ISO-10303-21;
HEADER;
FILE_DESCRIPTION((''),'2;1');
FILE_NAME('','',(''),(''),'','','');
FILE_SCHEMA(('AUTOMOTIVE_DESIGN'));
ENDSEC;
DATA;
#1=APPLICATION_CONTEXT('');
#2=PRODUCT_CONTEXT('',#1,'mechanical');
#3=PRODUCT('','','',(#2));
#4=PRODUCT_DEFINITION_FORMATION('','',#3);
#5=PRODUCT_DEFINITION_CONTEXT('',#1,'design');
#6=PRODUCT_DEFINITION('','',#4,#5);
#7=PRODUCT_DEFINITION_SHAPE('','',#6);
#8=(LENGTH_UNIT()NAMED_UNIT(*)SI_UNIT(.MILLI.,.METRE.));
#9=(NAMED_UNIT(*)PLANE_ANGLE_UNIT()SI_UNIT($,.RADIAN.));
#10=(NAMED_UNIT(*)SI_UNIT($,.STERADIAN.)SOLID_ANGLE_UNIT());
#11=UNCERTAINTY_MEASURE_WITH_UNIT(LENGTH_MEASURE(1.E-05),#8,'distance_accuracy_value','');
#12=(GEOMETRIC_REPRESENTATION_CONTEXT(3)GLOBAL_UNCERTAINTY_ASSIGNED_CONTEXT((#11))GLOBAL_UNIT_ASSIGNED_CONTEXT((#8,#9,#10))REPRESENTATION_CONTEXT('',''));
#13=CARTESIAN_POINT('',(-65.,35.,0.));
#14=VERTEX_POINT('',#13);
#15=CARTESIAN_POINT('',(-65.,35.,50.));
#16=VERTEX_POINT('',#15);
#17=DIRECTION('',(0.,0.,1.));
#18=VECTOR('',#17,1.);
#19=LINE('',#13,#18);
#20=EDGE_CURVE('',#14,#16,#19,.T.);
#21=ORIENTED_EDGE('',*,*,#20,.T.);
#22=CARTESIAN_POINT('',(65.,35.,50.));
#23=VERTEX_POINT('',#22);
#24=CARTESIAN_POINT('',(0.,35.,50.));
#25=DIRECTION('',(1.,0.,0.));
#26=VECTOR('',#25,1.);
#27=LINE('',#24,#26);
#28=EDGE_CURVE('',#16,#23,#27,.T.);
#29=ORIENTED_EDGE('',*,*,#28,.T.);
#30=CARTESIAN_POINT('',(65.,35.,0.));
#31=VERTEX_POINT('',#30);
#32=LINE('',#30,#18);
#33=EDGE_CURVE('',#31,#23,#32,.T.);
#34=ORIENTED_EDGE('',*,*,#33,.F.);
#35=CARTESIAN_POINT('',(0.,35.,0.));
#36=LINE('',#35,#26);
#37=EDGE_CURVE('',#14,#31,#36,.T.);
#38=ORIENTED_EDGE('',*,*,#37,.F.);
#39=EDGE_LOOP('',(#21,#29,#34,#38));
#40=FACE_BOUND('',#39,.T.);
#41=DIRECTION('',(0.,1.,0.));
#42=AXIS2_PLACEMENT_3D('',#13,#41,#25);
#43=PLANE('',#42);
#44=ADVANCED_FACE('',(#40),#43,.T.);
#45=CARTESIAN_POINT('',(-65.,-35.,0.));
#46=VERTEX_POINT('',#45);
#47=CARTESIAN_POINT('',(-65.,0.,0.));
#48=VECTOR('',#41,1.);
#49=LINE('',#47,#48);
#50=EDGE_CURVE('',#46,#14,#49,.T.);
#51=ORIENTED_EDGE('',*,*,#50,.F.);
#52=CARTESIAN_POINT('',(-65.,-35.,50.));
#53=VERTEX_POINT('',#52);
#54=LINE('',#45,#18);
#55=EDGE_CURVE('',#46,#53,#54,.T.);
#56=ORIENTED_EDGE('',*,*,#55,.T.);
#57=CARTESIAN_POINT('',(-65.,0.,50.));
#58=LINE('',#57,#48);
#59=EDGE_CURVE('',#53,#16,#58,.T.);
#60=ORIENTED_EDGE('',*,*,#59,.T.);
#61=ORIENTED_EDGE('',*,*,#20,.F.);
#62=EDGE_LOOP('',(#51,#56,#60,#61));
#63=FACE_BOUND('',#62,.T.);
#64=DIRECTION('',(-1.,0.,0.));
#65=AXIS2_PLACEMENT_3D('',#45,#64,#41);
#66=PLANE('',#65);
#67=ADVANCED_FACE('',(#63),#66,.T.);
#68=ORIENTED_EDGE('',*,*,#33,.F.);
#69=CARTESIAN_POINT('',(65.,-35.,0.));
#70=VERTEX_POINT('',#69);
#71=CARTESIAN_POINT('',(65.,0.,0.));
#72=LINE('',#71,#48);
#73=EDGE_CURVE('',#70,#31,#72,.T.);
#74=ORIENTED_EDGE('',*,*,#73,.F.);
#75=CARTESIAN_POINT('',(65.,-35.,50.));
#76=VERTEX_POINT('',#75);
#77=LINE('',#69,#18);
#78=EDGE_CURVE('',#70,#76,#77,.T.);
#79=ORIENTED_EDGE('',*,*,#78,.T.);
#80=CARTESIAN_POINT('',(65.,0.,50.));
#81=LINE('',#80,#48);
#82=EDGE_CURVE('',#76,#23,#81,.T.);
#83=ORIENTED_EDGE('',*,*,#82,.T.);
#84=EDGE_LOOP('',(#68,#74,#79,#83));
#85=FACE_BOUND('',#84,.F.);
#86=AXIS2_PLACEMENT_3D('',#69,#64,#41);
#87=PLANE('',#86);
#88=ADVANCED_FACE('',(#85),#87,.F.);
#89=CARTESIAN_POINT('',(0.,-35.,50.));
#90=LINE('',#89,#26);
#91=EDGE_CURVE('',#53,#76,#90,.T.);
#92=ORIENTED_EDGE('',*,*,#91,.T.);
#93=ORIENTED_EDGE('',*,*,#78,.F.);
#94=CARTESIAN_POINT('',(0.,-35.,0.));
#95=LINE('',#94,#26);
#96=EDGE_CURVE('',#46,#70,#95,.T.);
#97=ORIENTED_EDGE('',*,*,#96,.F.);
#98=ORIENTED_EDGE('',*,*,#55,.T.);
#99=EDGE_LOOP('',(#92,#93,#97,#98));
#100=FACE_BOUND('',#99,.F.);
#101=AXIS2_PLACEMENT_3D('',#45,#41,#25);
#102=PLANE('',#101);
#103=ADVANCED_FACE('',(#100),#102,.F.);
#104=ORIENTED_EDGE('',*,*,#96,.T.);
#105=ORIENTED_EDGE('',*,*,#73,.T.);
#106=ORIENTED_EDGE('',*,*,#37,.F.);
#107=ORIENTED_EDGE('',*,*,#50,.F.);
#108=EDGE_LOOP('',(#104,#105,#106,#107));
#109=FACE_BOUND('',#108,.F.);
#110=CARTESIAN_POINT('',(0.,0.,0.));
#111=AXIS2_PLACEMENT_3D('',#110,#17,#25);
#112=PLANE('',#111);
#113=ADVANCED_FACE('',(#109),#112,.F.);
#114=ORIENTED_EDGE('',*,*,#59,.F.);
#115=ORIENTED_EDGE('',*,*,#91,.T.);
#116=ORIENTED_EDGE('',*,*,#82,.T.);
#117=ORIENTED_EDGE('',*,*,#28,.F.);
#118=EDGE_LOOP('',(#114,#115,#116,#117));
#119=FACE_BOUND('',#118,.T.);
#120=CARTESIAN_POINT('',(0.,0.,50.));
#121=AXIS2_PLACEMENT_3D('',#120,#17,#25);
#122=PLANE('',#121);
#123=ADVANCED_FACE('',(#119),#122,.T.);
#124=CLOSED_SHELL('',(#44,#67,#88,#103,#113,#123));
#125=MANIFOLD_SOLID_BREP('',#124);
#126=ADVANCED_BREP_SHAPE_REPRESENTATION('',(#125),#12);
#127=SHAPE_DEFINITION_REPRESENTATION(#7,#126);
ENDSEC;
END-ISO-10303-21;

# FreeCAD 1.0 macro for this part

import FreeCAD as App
import Part
import Sketcher
from FreeCAD import Vector


def add_polygon(sketch, points):
    """Adds a closed chain of lines whose ends are joined by coincident constraints."""
    first, n = sketch.GeometryCount, len(points)
    for a, b in zip(points, points[1:] + points[:1]):
        sketch.addGeometry(Part.LineSegment(App.Vector(*a, 0), App.Vector(*b, 0)), False)
    for i in range(n):
        sketch.addConstraint(Sketcher.Constraint("Coincident", first + i, 2, first + (i + 1) % n, 1))

doc = App.newDocument("Part")
params = doc.addObject("Spreadsheet::Sheet", "Params")
for row, (alias, value) in enumerate([
    ("sketch1_width", "130 mm"),
    ("sketch1_height", "70 mm"),
    ("pad1_length", "50 mm"),
], start=1):
    params.set(f"A{row}", alias)
    params.set(f"B{row}", "=" + value)
    params.setAlias(f"B{row}", alias)

body = doc.addObject("PartDesign::Body", "Body")

sketch1 = body.newObject("Sketcher::SketchObject", "Sketch")
sketch1.AttachmentSupport = (doc.getObject("XY_Plane"), [""])
sketch1.MapMode = "FlatFace"
add_polygon(sketch1, [(-65, 35), (-65, -35), (65, -35), (65, 35)])
sketch1.addConstraint([
    Sketcher.Constraint("Vertical", 0),
    Sketcher.Constraint("Horizontal", 1),
    Sketcher.Constraint("Vertical", 2),
    Sketcher.Constraint("Horizontal", 3),
    Sketcher.Constraint("Symmetric", 0, 2, 2, 2, -1, 1),
    Sketcher.Constraint("DistanceX", 1, 1, 1, 2, 130.0),
    Sketcher.Constraint("DistanceY", 0, 2, 0, 1, 70.0),
])
sketch1.setExpression("Constraints[9]", "Params.sketch1_width")
sketch1.setExpression("Constraints[10]", "Params.sketch1_height")
pad1 = body.newObject("PartDesign::Pad", "Pad")
pad1.Profile = sketch1
pad1.setExpression("Length", "Params.pad1_length")

doc.recompute()
